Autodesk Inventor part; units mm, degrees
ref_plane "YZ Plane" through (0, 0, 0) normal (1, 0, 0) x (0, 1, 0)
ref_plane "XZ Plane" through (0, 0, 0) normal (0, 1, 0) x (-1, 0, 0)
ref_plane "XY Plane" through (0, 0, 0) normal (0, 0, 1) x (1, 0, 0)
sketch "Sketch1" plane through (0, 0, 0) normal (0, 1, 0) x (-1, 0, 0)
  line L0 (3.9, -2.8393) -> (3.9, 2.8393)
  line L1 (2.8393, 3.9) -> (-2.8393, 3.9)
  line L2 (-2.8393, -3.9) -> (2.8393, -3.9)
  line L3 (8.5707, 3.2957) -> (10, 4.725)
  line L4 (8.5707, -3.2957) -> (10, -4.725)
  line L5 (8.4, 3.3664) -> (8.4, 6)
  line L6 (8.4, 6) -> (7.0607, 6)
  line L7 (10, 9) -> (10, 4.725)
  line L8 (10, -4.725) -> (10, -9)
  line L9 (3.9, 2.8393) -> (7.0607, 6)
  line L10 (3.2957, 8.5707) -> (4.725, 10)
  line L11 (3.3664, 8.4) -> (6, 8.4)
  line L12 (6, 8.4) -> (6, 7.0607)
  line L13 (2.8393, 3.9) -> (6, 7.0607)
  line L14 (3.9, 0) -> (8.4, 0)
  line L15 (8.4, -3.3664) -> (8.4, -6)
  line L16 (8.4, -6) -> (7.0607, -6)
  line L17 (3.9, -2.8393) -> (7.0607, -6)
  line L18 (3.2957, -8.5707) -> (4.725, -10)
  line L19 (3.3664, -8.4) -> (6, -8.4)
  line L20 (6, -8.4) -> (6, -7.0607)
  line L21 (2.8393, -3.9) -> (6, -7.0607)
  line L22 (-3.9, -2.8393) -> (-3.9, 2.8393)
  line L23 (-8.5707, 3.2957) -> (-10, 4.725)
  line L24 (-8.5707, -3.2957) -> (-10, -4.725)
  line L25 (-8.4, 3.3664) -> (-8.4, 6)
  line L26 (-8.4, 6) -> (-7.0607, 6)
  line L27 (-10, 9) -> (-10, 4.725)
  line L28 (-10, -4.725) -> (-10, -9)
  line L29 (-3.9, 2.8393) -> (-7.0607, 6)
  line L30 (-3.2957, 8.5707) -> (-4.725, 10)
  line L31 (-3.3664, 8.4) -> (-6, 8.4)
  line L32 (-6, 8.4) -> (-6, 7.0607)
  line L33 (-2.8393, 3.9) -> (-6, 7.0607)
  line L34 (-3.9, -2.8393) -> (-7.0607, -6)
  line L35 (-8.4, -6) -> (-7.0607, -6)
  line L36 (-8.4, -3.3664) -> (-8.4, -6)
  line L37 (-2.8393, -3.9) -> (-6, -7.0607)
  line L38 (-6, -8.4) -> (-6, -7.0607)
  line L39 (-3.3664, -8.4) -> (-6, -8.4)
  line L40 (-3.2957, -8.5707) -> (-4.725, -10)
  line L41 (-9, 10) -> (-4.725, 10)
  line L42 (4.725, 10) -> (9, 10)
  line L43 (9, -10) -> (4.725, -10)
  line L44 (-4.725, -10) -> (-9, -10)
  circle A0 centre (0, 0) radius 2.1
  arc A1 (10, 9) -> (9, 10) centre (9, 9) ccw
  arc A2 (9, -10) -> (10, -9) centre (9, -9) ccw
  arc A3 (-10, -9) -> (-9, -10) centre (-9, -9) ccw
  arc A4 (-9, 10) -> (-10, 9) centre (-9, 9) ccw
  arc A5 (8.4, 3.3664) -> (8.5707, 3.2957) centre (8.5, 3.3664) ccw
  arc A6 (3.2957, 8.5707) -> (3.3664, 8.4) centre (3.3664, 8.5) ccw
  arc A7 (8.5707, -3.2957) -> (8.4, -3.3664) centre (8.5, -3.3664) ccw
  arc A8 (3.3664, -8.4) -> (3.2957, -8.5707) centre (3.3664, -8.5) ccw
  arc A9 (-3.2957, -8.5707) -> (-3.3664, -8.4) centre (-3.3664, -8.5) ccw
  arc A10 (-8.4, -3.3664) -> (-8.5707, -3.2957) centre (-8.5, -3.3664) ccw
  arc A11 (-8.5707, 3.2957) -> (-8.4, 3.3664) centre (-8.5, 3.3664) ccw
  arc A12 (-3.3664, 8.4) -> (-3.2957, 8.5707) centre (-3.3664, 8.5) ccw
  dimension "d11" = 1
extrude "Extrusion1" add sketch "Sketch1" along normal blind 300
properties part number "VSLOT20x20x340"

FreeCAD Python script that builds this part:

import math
import FreeCAD as App
import Part
import Sketcher
from FreeCAD import Vector
Q = App.Units.Quantity

doc = App.newDocument("Part")
body = doc.addObject("PartDesign::Body", "Body")

# Sketch on XZ plane
sketch1 = body.newObject("Sketcher::SketchObject", "Sketch")
sketch1.AttachmentSupport = (doc.getObject("XZ_Plane"), [""])
sketch1.MapMode = "FlatFace"
sketch1.addGeometry([
    Part.LineSegment(Vector(-7.06, -6, 0), Vector(-3.9, -2.84, 0)),  # 0
    Part.LineSegment(Vector(-3.9, -2.84, 0), Vector(-3.9, 2.84, 0)),  # 1
    Part.LineSegment(Vector(-3.9, 2.84, 0), Vector(-7.06, 6, 0)),  # 2
    Part.LineSegment(Vector(-7.06, 6, 0), Vector(-8.4, 6, 0)),  # 3
    Part.LineSegment(Vector(-8.4, 6, 0), Vector(-8.4, 3.37, 0)),  # 4
    Part.ArcOfCircle(Part.Circle(Vector(-8.5, 3.37, 0), Vector(0, 0, 1), 0.1), math.radians(-135), math.radians(0)),  # 5
    Part.LineSegment(Vector(-8.57, 3.3, 0), Vector(-10, 4.72, 0)),  # 6
    Part.LineSegment(Vector(-10, 4.72, 0), Vector(-10, 9, 0)),  # 7
    Part.ArcOfCircle(Part.Circle(Vector(-9, 9, 0), Vector(0, 0, 1), 1), math.radians(90), math.radians(180)),  # 8
    Part.LineSegment(Vector(-9, 10, 0), Vector(-4.72, 10, 0)),  # 9
    Part.LineSegment(Vector(-4.72, 10, 0), Vector(-3.3, 8.57, 0)),  # 10
    Part.ArcOfCircle(Part.Circle(Vector(-3.37, 8.5, 0), Vector(0, 0, 1), 0.1), math.radians(-90), math.radians(45)),  # 11
    Part.LineSegment(Vector(-3.37, 8.4, 0), Vector(-6, 8.4, 0)),  # 12
    Part.LineSegment(Vector(-6, 8.4, 0), Vector(-6, 7.06, 0)),  # 13
    Part.LineSegment(Vector(-6, 7.06, 0), Vector(-2.84, 3.9, 0)),  # 14
    Part.LineSegment(Vector(-2.84, 3.9, 0), Vector(2.84, 3.9, 0)),  # 15
    Part.LineSegment(Vector(2.84, 3.9, 0), Vector(6, 7.06, 0)),  # 16
    Part.LineSegment(Vector(6, 7.06, 0), Vector(6, 8.4, 0)),  # 17
    Part.LineSegment(Vector(6, 8.4, 0), Vector(3.37, 8.4, 0)),  # 18
    Part.ArcOfCircle(Part.Circle(Vector(3.37, 8.5, 0), Vector(0, 0, 1), 0.1), math.radians(135), math.radians(270)),  # 19
    Part.LineSegment(Vector(3.3, 8.57, 0), Vector(4.72, 10, 0)),  # 20
    Part.LineSegment(Vector(4.72, 10, 0), Vector(9, 10, 0)),  # 21
    Part.ArcOfCircle(Part.Circle(Vector(9, 9, 0), Vector(0, 0, 1), 1), math.radians(0), math.radians(90)),  # 22
    Part.LineSegment(Vector(10, 9, 0), Vector(10, 4.72, 0)),  # 23
    Part.LineSegment(Vector(10, 4.72, 0), Vector(8.57, 3.3, 0)),  # 24
    Part.ArcOfCircle(Part.Circle(Vector(8.5, 3.37, 0), Vector(0, 0, 1), 0.1), math.radians(180), math.radians(315)),  # 25
    Part.LineSegment(Vector(8.4, 3.37, 0), Vector(8.4, 6, 0)),  # 26
    Part.LineSegment(Vector(8.4, 6, 0), Vector(7.06, 6, 0)),  # 27
    Part.LineSegment(Vector(7.06, 6, 0), Vector(3.9, 2.84, 0)),  # 28
    Part.LineSegment(Vector(3.9, 2.84, 0), Vector(3.9, -2.84, 0)),  # 29
    Part.LineSegment(Vector(3.9, -2.84, 0), Vector(7.06, -6, 0)),  # 30
    Part.LineSegment(Vector(7.06, -6, 0), Vector(8.4, -6, 0)),  # 31
    Part.LineSegment(Vector(8.4, -6, 0), Vector(8.4, -3.37, 0)),  # 32
    Part.ArcOfCircle(Part.Circle(Vector(8.5, -3.37, 0), Vector(0, 0, 1), 0.1), math.radians(45), math.radians(180)),  # 33
    Part.LineSegment(Vector(8.57, -3.3, 0), Vector(10, -4.72, 0)),  # 34
    Part.LineSegment(Vector(10, -4.72, 0), Vector(10, -9, 0)),  # 35
    Part.ArcOfCircle(Part.Circle(Vector(9, -9, 0), Vector(0, 0, 1), 1), math.radians(-90), math.radians(0)),  # 36
    Part.LineSegment(Vector(9, -10, 0), Vector(4.72, -10, 0)),  # 37
    Part.LineSegment(Vector(4.72, -10, 0), Vector(3.3, -8.57, 0)),  # 38
    Part.ArcOfCircle(Part.Circle(Vector(3.37, -8.5, 0), Vector(0, 0, 1), 0.1), math.radians(90), math.radians(225)),  # 39
    Part.LineSegment(Vector(3.37, -8.4, 0), Vector(6, -8.4, 0)),  # 40
    Part.LineSegment(Vector(6, -8.4, 0), Vector(6, -7.06, 0)),  # 41
    Part.LineSegment(Vector(6, -7.06, 0), Vector(2.84, -3.9, 0)),  # 42
    Part.LineSegment(Vector(2.84, -3.9, 0), Vector(-2.84, -3.9, 0)),  # 43
    Part.LineSegment(Vector(-2.84, -3.9, 0), Vector(-6, -7.06, 0)),  # 44
    Part.LineSegment(Vector(-6, -7.06, 0), Vector(-6, -8.4, 0)),  # 45
    Part.LineSegment(Vector(-6, -8.4, 0), Vector(-3.37, -8.4, 0)),  # 46
    Part.ArcOfCircle(Part.Circle(Vector(-3.37, -8.5, 0), Vector(0, 0, 1), 0.1), math.radians(-45), math.radians(90)),  # 47
    Part.LineSegment(Vector(-3.3, -8.57, 0), Vector(-4.72, -10, 0)),  # 48
    Part.LineSegment(Vector(-4.72, -10, 0), Vector(-9, -10, 0)),  # 49
    Part.ArcOfCircle(Part.Circle(Vector(-9, -9, 0), Vector(0, 0, 1), 1), math.radians(180), math.radians(270)),  # 50
    Part.LineSegment(Vector(-10, -9, 0), Vector(-10, -4.72, 0)),  # 51
    Part.LineSegment(Vector(-10, -4.72, 0), Vector(-8.57, -3.3, 0)),  # 52
    Part.ArcOfCircle(Part.Circle(Vector(-8.5, -3.37, 0), Vector(0, 0, 1), 0.1), math.radians(0), math.radians(135)),  # 53
    Part.LineSegment(Vector(-8.4, -3.37, 0), Vector(-8.4, -6, 0)),  # 54
    Part.LineSegment(Vector(-8.4, -6, 0), Vector(-7.06, -6, 0)),  # 55
    Part.Circle(Vector(0, 0, 0), Vector(0, 0, 1), 2.1),  # 56
], False)
sketch1.addConstraint([
    Sketcher.Constraint("Coincident", 0, 2, 1, 1),
    Sketcher.Constraint("Coincident", 1, 2, 2, 1),
    Sketcher.Constraint("Coincident", 2, 2, 3, 1),
    Sketcher.Constraint("Coincident", 3, 2, 4, 1),
    Sketcher.Constraint("Tangent", 4, 2, 5, 2),
    Sketcher.Constraint("Tangent", 5, 1, 6, 1),
    Sketcher.Constraint("Coincident", 6, 2, 7, 1),
    Sketcher.Constraint("Tangent", 7, 2, 8, 2),
    Sketcher.Constraint("Tangent", 8, 1, 9, 1),
    Sketcher.Constraint("Coincident", 9, 2, 10, 1),
    Sketcher.Constraint("Tangent", 10, 2, 11, 2),
    Sketcher.Constraint("Tangent", 11, 1, 12, 1),
    Sketcher.Constraint("Coincident", 12, 2, 13, 1),
    Sketcher.Constraint("Coincident", 13, 2, 14, 1),
    Sketcher.Constraint("Coincident", 14, 2, 15, 1),
    Sketcher.Constraint("Coincident", 15, 2, 16, 1),
    Sketcher.Constraint("Coincident", 16, 2, 17, 1),
    Sketcher.Constraint("Coincident", 17, 2, 18, 1),
    Sketcher.Constraint("Tangent", 18, 2, 19, 2),
    Sketcher.Constraint("Tangent", 19, 1, 20, 1),
    Sketcher.Constraint("Coincident", 20, 2, 21, 1),
    Sketcher.Constraint("Tangent", 21, 2, 22, 2),
    Sketcher.Constraint("Tangent", 22, 1, 23, 1),
    Sketcher.Constraint("Coincident", 23, 2, 24, 1),
    Sketcher.Constraint("Tangent", 24, 2, 25, 2),
    Sketcher.Constraint("Tangent", 25, 1, 26, 1),
    Sketcher.Constraint("Coincident", 26, 2, 27, 1),
    Sketcher.Constraint("Coincident", 27, 2, 28, 1),
    Sketcher.Constraint("Coincident", 28, 2, 29, 1),
    Sketcher.Constraint("Coincident", 29, 2, 30, 1),
    Sketcher.Constraint("Coincident", 30, 2, 31, 1),
    Sketcher.Constraint("Coincident", 31, 2, 32, 1),
    Sketcher.Constraint("Tangent", 32, 2, 33, 2),
    Sketcher.Constraint("Tangent", 33, 1, 34, 1),
    Sketcher.Constraint("Coincident", 34, 2, 35, 1),
    Sketcher.Constraint("Tangent", 35, 2, 36, 2),
    Sketcher.Constraint("Tangent", 36, 1, 37, 1),
    Sketcher.Constraint("Coincident", 37, 2, 38, 1),
    Sketcher.Constraint("Tangent", 38, 2, 39, 2),
    Sketcher.Constraint("Tangent", 39, 1, 40, 1),
    Sketcher.Constraint("Coincident", 40, 2, 41, 1),
    Sketcher.Constraint("Coincident", 41, 2, 42, 1),
    Sketcher.Constraint("Coincident", 42, 2, 43, 1),
    Sketcher.Constraint("Coincident", 43, 2, 44, 1),
    Sketcher.Constraint("Coincident", 44, 2, 45, 1),
    Sketcher.Constraint("Coincident", 45, 2, 46, 1),
    Sketcher.Constraint("Tangent", 46, 2, 47, 2),
    Sketcher.Constraint("Tangent", 47, 1, 48, 1),
    Sketcher.Constraint("Coincident", 48, 2, 49, 1),
    Sketcher.Constraint("Tangent", 49, 2, 50, 2),
    Sketcher.Constraint("Tangent", 50, 1, 51, 1),
    Sketcher.Constraint("Coincident", 51, 2, 52, 1),
    Sketcher.Constraint("Tangent", 52, 2, 53, 2),
    Sketcher.Constraint("Tangent", 53, 1, 54, 1),
    Sketcher.Constraint("Coincident", 54, 2, 55, 1),
    Sketcher.Constraint("Coincident", 55, 2, 0, 1),
    Sketcher.Constraint("Vertical", 1),
    Sketcher.Constraint("Horizontal", 3),
    Sketcher.Constraint("Vertical", 4),
    Sketcher.Constraint("Vertical", 7),
    Sketcher.Constraint("Horizontal", 9),
    Sketcher.Constraint("Horizontal", 12),
    Sketcher.Constraint("Vertical", 13),
    Sketcher.Constraint("Horizontal", 15),
    Sketcher.Constraint("Vertical", 17),
    Sketcher.Constraint("Horizontal", 18),
    Sketcher.Constraint("Horizontal", 21),
    Sketcher.Constraint("Vertical", 23),
    Sketcher.Constraint("Vertical", 26),
    Sketcher.Constraint("Horizontal", 27),
    Sketcher.Constraint("Vertical", 29),
    Sketcher.Constraint("Horizontal", 31),
    Sketcher.Constraint("Vertical", 32),
    Sketcher.Constraint("Vertical", 35),
    Sketcher.Constraint("Horizontal", 37),
    Sketcher.Constraint("Horizontal", 40),
    Sketcher.Constraint("Vertical", 41),
    Sketcher.Constraint("Horizontal", 43),
    Sketcher.Constraint("Vertical", 45),
    Sketcher.Constraint("Horizontal", 46),
    Sketcher.Constraint("Horizontal", 49),
    Sketcher.Constraint("Vertical", 51),
    Sketcher.Constraint("Vertical", 54),
    Sketcher.Constraint("Horizontal", 55),
    Sketcher.Constraint("Coincident", 56, 3, -1, 1),
    Sketcher.Constraint("Equal", 5, 11),
    Sketcher.Constraint("Equal", 11, 19),
    Sketcher.Constraint("Equal", 8, 22),
    Sketcher.Constraint("Equal", 19, 25),
    Sketcher.Constraint("Equal", 25, 33),
    Sketcher.Constraint("Equal", 22, 36),
    Sketcher.Constraint("Equal", 33, 39),
    Sketcher.Constraint("Equal", 39, 47),
    Sketcher.Constraint("Equal", 36, 50),
    Sketcher.Constraint("Equal", 47, 53),
    Sketcher.Constraint("Symmetric", 5, 3, 33, 3, -1, 1),
    Sketcher.Constraint("Symmetric", 8, 3, 36, 3, -1, 1),
    Sketcher.Constraint("Symmetric", 11, 3, 39, 3, -1, 1),
    Sketcher.Constraint("Symmetric", 19, 3, 47, 3, -1, 1),
    Sketcher.Constraint("Symmetric", 22, 3, 50, 3, -1, 1),
    Sketcher.Constraint("Symmetric", 25, 3, 53, 3, -1, 1),
    Sketcher.Constraint("Symmetric", 0, 2, 28, 2, -1, 1),
    Sketcher.Constraint("Symmetric", 2, 2, 30, 2, -1, 1),
    Sketcher.Constraint("Symmetric", 13, 2, 41, 2, -1, 1),
    Sketcher.Constraint("Symmetric", 14, 2, 42, 2, -1, 1),
    Sketcher.Constraint("Symmetric", 16, 2, 44, 2, -1, 1),
    Sketcher.Constraint("Symmetric", 27, 2, 55, 2, -1, 1),
    Sketcher.Constraint("Symmetric", 11, 3, 19, 3, -2),
    Sketcher.Constraint("Symmetric", 8, 3, 22, 3, -2),
    Sketcher.Constraint("Symmetric", 5, 3, 25, 3, -2),
    Sketcher.Constraint("Symmetric", 13, 2, 16, 2, -2),
    Sketcher.Constraint("Symmetric", 2, 2, 27, 2, -2),
    Sketcher.Constraint("Perpendicular", 0, 2),
    Sketcher.Constraint("Parallel", 2, 6),
    Sketcher.Constraint("Parallel", 6, 10),
    Sketcher.Constraint("Parallel", 10, 14),
    Sketcher.Constraint("Perpendicular", 14, 16),
    Sketcher.Constraint("Parallel", 16, 20),
    Sketcher.Constraint("Parallel", 20, 24),
    Sketcher.Constraint("Perpendicular", 28, 30),
    Sketcher.Constraint("Parallel", 30, 34),
    Sketcher.Constraint("Parallel", 34, 38),
    Sketcher.Constraint("Perpendicular", 42, 44),
    Sketcher.Constraint("Parallel", 44, 48),
    Sketcher.Constraint("Parallel", 48, 52),
    Sketcher.Constraint("Horizontal", 10, 2, 19, 1),
    Sketcher.Constraint("Equal", 43, 1),
    Sketcher.Constraint("Equal", 46, 4),
    Sketcher.Constraint("Equal", 49, 7),
    Sketcher.Constraint("Equal", 55, 13),
    Sketcher.Constraint("Equal", 6, 10),
    Sketcher.Constraint("Equal", 2, 14),
    Sketcher.Constraint("Radius", 8, Q("1 mm")),
    Sketcher.Constraint("Diameter", 56, Q("4.2 mm")),
    Sketcher.Constraint("Radius", 5, Q("0.1 mm")),
    Sketcher.Constraint("DistanceX", 8, 3, -1, 1, Q("9 mm")),
    Sketcher.Constraint("DistanceY", -1, 1, 2, 2, Q("6 mm")),
    Sketcher.Constraint("DistanceX", 5, 3, -1, 1, Q("8.5 mm")),
    Sketcher.Constraint("DistanceX", 0, 2, -1, 1, Q("3.9 mm")),
    Sketcher.Constraint("Distance", 0, Q("4.47 mm")),
    Sketcher.Constraint("DistanceX", 9, 1, 9, 2, Q("4.275 mm")),
])
pad1 = body.newObject("PartDesign::Pad", "Pad")
pad1.Profile = sketch1
pad1.Length = 300
pad1.Reversed = True

doc.recompute()
